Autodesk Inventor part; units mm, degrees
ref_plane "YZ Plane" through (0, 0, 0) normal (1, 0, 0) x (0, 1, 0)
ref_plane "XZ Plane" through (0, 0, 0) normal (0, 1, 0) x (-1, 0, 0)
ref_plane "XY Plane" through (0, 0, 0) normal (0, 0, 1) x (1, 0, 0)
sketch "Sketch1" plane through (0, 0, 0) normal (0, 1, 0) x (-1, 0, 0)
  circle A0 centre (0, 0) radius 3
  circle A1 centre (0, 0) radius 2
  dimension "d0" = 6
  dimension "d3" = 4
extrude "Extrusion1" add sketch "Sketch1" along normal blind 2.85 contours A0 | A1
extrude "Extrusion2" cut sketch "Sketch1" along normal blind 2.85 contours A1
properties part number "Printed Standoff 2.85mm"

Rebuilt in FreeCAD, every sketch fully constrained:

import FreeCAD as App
import Part
import Sketcher

V = App.Vector
Q = App.Units.Quantity

doc = App.newDocument("Part")
body = doc.addObject("PartDesign::Body", "Body")

sketch1 = body.newObject("Sketcher::SketchObject", "Sketch")
sketch1.AttachmentSupport = (doc.getObject("XZ_Plane"), [""])
sketch1.MapMode = "FlatFace"
sketch1.addGeometry(Part.Circle(V(0, 0, 0), V(0, 0, 1), 3), False)
sketch1.addConstraint([
    Sketcher.Constraint("Coincident", 0, 3, -1, 1),
    Sketcher.Constraint("Diameter", 0, Q("6 mm")),
])
pad1 = body.newObject("PartDesign::Pad", "Pad")
pad1.Profile = sketch1
pad1.Length = 2.85
pad1.Reversed = True

sketch2 = body.newObject("Sketcher::SketchObject", "Sketch001")
sketch2.AttachmentSupport = (doc.getObject("XZ_Plane"), [""])
sketch2.MapMode = "FlatFace"
sketch2.addGeometry(Part.Circle(V(0, 0, 0), V(0, 0, 1), 2), False)
sketch2.addConstraint([
    Sketcher.Constraint("Coincident", 0, 3, -1, 1),
    Sketcher.Constraint("Diameter", 0, Q("4 mm")),
])
pocket1 = body.newObject("PartDesign::Pocket", "Pocket")
pocket1.Profile = sketch2
pocket1.Length = 2.85

doc.recompute()
